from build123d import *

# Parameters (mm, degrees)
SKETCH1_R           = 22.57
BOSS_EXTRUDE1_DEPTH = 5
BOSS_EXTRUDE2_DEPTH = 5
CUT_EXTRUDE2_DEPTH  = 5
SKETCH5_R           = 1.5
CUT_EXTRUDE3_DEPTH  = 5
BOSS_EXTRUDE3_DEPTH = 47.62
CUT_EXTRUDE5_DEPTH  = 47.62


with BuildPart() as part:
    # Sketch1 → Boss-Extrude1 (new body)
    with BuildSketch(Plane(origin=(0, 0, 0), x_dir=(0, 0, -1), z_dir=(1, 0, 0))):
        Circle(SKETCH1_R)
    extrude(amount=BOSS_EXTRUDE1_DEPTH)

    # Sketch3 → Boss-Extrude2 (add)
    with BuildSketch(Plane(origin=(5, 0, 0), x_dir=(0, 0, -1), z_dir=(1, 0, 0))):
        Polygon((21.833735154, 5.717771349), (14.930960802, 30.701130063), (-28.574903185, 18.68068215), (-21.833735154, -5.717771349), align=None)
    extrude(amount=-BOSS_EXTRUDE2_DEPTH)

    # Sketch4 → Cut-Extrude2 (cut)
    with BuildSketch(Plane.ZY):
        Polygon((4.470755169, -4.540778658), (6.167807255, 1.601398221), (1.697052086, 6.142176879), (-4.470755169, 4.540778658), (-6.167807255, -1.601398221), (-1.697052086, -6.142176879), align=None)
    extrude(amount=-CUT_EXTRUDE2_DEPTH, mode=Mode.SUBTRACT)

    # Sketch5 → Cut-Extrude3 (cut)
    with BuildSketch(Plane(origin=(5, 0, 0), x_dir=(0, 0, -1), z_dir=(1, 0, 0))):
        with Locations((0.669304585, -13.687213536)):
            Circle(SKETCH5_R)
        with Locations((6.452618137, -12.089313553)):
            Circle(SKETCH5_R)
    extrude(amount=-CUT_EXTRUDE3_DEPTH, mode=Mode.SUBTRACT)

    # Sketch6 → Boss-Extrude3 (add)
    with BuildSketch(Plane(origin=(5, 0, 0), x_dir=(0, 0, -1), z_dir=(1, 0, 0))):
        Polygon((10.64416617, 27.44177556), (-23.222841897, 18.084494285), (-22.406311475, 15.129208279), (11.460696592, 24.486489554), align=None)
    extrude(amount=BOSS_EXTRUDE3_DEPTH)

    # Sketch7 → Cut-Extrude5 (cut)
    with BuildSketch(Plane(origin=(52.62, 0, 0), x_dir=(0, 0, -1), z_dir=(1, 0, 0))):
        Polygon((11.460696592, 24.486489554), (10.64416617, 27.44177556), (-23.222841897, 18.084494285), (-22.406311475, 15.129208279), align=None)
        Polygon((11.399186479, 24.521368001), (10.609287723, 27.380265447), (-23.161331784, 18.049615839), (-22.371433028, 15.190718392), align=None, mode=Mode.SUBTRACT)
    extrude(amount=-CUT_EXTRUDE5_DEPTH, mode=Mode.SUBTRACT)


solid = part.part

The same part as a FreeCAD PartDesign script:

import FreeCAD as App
import Part
import Sketcher


def add_polygon(sketch, points):
    """Adds a closed chain of lines whose ends are joined by coincident constraints."""
    first, n = sketch.GeometryCount, len(points)
    for a, b in zip(points, points[1:] + points[:1]):
        sketch.addGeometry(Part.LineSegment(App.Vector(*a, 0), App.Vector(*b, 0)), False)
    for i in range(n):
        sketch.addConstraint(Sketcher.Constraint("Coincident", first + i, 2, first + (i + 1) % n, 1))

doc = App.newDocument("Part")
body = doc.addObject("PartDesign::Body", "Body")

# Sketch on YZ plane
sketch1 = body.newObject("Sketcher::SketchObject", "Sketch")
sketch1.AttachmentSupport = (doc.getObject("YZ_Plane"), [""])
sketch1.MapMode = "FlatFace"
sketch1.addGeometry(Part.Circle(App.Vector(0, 0, 0), App.Vector(0, 0, 1), 22.57), False)
sketch1.addConstraint(Sketcher.Constraint("Coincident", 0, 3, -1, 1))
sketch1.addConstraint(Sketcher.Constraint("Diameter", 0, 45.14))
pad1 = body.newObject("PartDesign::Pad", "Pad")
pad1.Profile = sketch1
pad1.Length = 5

# Sketch on YZ plane
sketch2 = body.newObject("Sketcher::SketchObject", "Sketch001")
sketch2.AttachmentSupport = (doc.getObject("YZ_Plane"), [""])
sketch2.MapMode = "FlatFace"
sketch2.AttachmentOffset = App.Placement(App.Vector(0, 0, 5), App.Rotation())
add_polygon(sketch2, [(5.717771, -21.833735), (30.70113, -14.930961), (18.680682, 28.574903), (-5.717771, 21.833735)])  # lines 0-3
sketch2.addConstraint(Sketcher.Constraint("Symmetric", 2, 2, 3, 2, -1, 1))
sketch2.addConstraint(Sketcher.Constraint("Perpendicular", 0, 1))
sketch2.addConstraint(Sketcher.Constraint("Perpendicular", 1, 2))
sketch2.addConstraint(Sketcher.Constraint("Distance", 3, 45.14))
sketch2.addConstraint(Sketcher.Constraint("DistanceX", 2, 2, 0, 2, 36.418901))
sketch2.addConstraint(Sketcher.Constraint("Distance", 1, 45.135921))
sketch2.addConstraint(Sketcher.Constraint("DistanceX", -1, 1, 0, 2, 30.70113))
pad2 = body.newObject("PartDesign::Pad", "Pad001")
pad2.Profile = sketch2
pad2.Length = 5
pad2.Reversed = True

# Sketch on YZ plane
sketch3 = body.newObject("Sketcher::SketchObject", "Sketch002")
sketch3.AttachmentSupport = (doc.getObject("YZ_Plane"), [""])
sketch3.MapMode = "FlatFace"
add_polygon(sketch3, [(-4.540779, 4.470755), (1.601398, 6.167807), (6.142177, 1.697052), (4.540779, -4.470755), (-1.601398, -6.167807), (-6.142177, -1.697052)])  # lines 0-5
sketch3.addConstraint(Sketcher.Constraint("Symmetric", 0, 2, 3, 2, -1, 1))
sketch3.addConstraint(Sketcher.Constraint("Symmetric", 1, 2, 4, 2, -1, 1))
sketch3.addConstraint(Sketcher.Constraint("Symmetric", 2, 2, 5, 2, -1, 1))
sketch3.addConstraint(Sketcher.Constraint("Equal", 0, 1))
sketch3.addConstraint(Sketcher.Constraint("Equal", 1, 2))
sketch3.addConstraint(Sketcher.Constraint("DistanceX", -1, 1, 0, 2, 1.601398))
sketch3.addConstraint(Sketcher.Constraint("DistanceX", 2, 2, 1, 2, 1.601398))
sketch3.addConstraint(Sketcher.Constraint("Distance", 0, 6.372309))
sketch3.addConstraint(Sketcher.Constraint("DistanceX", -1, 1, 2, 2, 4.540779))
pocket1 = body.newObject("PartDesign::Pocket", "Pocket")
pocket1.Profile = sketch3
pocket1.Length = 5
pocket1.Reversed = True

# Sketch on YZ plane
sketch4 = body.newObject("Sketcher::SketchObject", "Sketch003")
sketch4.AttachmentSupport = (doc.getObject("YZ_Plane"), [""])
sketch4.MapMode = "FlatFace"
sketch4.AttachmentOffset = App.Placement(App.Vector(0, 0, 5), App.Rotation())
sketch4.addGeometry(Part.Circle(App.Vector(-13.687214, -0.669305, 0), App.Vector(0, 0, 1), 1.5), False)
sketch4.addGeometry(Part.Circle(App.Vector(-12.089314, -6.452618, 0), App.Vector(0, 0, 1), 1.5), False)
sketch4.addConstraint(Sketcher.Constraint("Equal", 0, 1))
sketch4.addConstraint(Sketcher.Constraint("Diameter", 0, 3.0))
sketch4.addConstraint(Sketcher.Constraint("DistanceX", 0, 3, 1, 3, 1.5979))
sketch4.addConstraint(Sketcher.Constraint("DistanceY", 1, 3, -1, 1, 6.452618))
sketch4.addConstraint(Sketcher.Constraint("DistanceX", 0, 3, -1, 1, 13.687214))
sketch4.addConstraint(Sketcher.Constraint("DistanceY", 0, 3, -1, 1, 0.669305))
pocket2 = body.newObject("PartDesign::Pocket", "Pocket001")
pocket2.Profile = sketch4
pocket2.Length = 5

# Sketch on YZ plane
sketch5 = body.newObject("Sketcher::SketchObject", "Sketch004")
sketch5.AttachmentSupport = (doc.getObject("YZ_Plane"), [""])
sketch5.MapMode = "FlatFace"
sketch5.AttachmentOffset = App.Placement(App.Vector(0, 0, 5), App.Rotation())
add_polygon(sketch5, [(27.441776, -10.644166), (18.084494, 23.222842), (15.129208, 22.406311), (24.48649, -11.460697)])  # lines 0-3
sketch5.addConstraint(Sketcher.Constraint("Perpendicular", 0, 1))
sketch5.addConstraint(Sketcher.Constraint("Perpendicular", 1, 2))
sketch5.addConstraint(Sketcher.Constraint("Perpendicular", 2, 3))
sketch5.addConstraint(Sketcher.Constraint("Distance", 0, 35.135921))
sketch5.addConstraint(Sketcher.Constraint("DistanceY", -1, 1, 0, 2, 23.222842))
sketch5.addConstraint(Sketcher.Constraint("DistanceX", -1, 1, 1, 2, 15.129208))
sketch5.addConstraint(Sketcher.Constraint("DistanceY", -1, 1, 1, 2, 22.406311))
sketch5.addConstraint(Sketcher.Constraint("DistanceX", -1, 1, 2, 2, 24.48649))
pad3 = body.newObject("PartDesign::Pad", "Pad002")
pad3.Profile = sketch5
pad3.Length = 47.62

# Sketch on YZ plane
sketch6 = body.newObject("Sketcher::SketchObject", "Sketch005")
sketch6.AttachmentSupport = (doc.getObject("YZ_Plane"), [""])
sketch6.MapMode = "FlatFace"
sketch6.AttachmentOffset = App.Placement(App.Vector(0, 0, 52.62), App.Rotation())
add_polygon(sketch6, [(24.48649, -11.460697), (27.441776, -10.644166), (18.084494, 23.222842), (15.129208, 22.406311)])  # lines 0-3
add_polygon(sketch6, [(27.380265, -10.609288), (24.521368, -11.399186), (15.190718, 22.371433), (18.049616, 23.161332)])  # lines 4-7
sketch6.addConstraint(Sketcher.Constraint("Perpendicular", 0, 1))
sketch6.addConstraint(Sketcher.Constraint("Perpendicular", 1, 2))
sketch6.addConstraint(Sketcher.Constraint("Perpendicular", 2, 3))
sketch6.addConstraint(Sketcher.Constraint("Perpendicular", 3, 4))
sketch6.addConstraint(Sketcher.Constraint("Perpendicular", 4, 5))
sketch6.addConstraint(Sketcher.Constraint("Perpendicular", 5, 6))
sketch6.addConstraint(Sketcher.Constraint("Perpendicular", 6, 7))
sketch6.addConstraint(Sketcher.Constraint("DistanceY", 0, 2, 5, 2, 33.015599))
sketch6.addConstraint(Sketcher.Constraint("DistanceY", 5, 2, 6, 2, 0.789899))
sketch6.addConstraint(Sketcher.Constraint("Distance", 1, 35.135921))
sketch6.addConstraint(Sketcher.Constraint("Distance", 5, 35.035921))
sketch6.addConstraint(Sketcher.Constraint("DistanceY", -1, 1, 1, 2, 23.222842))
sketch6.addConstraint(Sketcher.Constraint("DistanceX", -1, 1, 2, 2, 15.129208))
sketch6.addConstraint(Sketcher.Constraint("DistanceY", -1, 1, 2, 2, 22.406311))
sketch6.addConstraint(Sketcher.Constraint("DistanceX", -1, 1, 3, 2, 24.48649))
sketch6.addConstraint(Sketcher.Constraint("DistanceX", -1, 1, 4, 2, 24.521368))
pocket3 = body.newObject("PartDesign::Pocket", "Pocket002")
pocket3.Profile = sketch6
pocket3.Length = 47.62

doc.recompute()
